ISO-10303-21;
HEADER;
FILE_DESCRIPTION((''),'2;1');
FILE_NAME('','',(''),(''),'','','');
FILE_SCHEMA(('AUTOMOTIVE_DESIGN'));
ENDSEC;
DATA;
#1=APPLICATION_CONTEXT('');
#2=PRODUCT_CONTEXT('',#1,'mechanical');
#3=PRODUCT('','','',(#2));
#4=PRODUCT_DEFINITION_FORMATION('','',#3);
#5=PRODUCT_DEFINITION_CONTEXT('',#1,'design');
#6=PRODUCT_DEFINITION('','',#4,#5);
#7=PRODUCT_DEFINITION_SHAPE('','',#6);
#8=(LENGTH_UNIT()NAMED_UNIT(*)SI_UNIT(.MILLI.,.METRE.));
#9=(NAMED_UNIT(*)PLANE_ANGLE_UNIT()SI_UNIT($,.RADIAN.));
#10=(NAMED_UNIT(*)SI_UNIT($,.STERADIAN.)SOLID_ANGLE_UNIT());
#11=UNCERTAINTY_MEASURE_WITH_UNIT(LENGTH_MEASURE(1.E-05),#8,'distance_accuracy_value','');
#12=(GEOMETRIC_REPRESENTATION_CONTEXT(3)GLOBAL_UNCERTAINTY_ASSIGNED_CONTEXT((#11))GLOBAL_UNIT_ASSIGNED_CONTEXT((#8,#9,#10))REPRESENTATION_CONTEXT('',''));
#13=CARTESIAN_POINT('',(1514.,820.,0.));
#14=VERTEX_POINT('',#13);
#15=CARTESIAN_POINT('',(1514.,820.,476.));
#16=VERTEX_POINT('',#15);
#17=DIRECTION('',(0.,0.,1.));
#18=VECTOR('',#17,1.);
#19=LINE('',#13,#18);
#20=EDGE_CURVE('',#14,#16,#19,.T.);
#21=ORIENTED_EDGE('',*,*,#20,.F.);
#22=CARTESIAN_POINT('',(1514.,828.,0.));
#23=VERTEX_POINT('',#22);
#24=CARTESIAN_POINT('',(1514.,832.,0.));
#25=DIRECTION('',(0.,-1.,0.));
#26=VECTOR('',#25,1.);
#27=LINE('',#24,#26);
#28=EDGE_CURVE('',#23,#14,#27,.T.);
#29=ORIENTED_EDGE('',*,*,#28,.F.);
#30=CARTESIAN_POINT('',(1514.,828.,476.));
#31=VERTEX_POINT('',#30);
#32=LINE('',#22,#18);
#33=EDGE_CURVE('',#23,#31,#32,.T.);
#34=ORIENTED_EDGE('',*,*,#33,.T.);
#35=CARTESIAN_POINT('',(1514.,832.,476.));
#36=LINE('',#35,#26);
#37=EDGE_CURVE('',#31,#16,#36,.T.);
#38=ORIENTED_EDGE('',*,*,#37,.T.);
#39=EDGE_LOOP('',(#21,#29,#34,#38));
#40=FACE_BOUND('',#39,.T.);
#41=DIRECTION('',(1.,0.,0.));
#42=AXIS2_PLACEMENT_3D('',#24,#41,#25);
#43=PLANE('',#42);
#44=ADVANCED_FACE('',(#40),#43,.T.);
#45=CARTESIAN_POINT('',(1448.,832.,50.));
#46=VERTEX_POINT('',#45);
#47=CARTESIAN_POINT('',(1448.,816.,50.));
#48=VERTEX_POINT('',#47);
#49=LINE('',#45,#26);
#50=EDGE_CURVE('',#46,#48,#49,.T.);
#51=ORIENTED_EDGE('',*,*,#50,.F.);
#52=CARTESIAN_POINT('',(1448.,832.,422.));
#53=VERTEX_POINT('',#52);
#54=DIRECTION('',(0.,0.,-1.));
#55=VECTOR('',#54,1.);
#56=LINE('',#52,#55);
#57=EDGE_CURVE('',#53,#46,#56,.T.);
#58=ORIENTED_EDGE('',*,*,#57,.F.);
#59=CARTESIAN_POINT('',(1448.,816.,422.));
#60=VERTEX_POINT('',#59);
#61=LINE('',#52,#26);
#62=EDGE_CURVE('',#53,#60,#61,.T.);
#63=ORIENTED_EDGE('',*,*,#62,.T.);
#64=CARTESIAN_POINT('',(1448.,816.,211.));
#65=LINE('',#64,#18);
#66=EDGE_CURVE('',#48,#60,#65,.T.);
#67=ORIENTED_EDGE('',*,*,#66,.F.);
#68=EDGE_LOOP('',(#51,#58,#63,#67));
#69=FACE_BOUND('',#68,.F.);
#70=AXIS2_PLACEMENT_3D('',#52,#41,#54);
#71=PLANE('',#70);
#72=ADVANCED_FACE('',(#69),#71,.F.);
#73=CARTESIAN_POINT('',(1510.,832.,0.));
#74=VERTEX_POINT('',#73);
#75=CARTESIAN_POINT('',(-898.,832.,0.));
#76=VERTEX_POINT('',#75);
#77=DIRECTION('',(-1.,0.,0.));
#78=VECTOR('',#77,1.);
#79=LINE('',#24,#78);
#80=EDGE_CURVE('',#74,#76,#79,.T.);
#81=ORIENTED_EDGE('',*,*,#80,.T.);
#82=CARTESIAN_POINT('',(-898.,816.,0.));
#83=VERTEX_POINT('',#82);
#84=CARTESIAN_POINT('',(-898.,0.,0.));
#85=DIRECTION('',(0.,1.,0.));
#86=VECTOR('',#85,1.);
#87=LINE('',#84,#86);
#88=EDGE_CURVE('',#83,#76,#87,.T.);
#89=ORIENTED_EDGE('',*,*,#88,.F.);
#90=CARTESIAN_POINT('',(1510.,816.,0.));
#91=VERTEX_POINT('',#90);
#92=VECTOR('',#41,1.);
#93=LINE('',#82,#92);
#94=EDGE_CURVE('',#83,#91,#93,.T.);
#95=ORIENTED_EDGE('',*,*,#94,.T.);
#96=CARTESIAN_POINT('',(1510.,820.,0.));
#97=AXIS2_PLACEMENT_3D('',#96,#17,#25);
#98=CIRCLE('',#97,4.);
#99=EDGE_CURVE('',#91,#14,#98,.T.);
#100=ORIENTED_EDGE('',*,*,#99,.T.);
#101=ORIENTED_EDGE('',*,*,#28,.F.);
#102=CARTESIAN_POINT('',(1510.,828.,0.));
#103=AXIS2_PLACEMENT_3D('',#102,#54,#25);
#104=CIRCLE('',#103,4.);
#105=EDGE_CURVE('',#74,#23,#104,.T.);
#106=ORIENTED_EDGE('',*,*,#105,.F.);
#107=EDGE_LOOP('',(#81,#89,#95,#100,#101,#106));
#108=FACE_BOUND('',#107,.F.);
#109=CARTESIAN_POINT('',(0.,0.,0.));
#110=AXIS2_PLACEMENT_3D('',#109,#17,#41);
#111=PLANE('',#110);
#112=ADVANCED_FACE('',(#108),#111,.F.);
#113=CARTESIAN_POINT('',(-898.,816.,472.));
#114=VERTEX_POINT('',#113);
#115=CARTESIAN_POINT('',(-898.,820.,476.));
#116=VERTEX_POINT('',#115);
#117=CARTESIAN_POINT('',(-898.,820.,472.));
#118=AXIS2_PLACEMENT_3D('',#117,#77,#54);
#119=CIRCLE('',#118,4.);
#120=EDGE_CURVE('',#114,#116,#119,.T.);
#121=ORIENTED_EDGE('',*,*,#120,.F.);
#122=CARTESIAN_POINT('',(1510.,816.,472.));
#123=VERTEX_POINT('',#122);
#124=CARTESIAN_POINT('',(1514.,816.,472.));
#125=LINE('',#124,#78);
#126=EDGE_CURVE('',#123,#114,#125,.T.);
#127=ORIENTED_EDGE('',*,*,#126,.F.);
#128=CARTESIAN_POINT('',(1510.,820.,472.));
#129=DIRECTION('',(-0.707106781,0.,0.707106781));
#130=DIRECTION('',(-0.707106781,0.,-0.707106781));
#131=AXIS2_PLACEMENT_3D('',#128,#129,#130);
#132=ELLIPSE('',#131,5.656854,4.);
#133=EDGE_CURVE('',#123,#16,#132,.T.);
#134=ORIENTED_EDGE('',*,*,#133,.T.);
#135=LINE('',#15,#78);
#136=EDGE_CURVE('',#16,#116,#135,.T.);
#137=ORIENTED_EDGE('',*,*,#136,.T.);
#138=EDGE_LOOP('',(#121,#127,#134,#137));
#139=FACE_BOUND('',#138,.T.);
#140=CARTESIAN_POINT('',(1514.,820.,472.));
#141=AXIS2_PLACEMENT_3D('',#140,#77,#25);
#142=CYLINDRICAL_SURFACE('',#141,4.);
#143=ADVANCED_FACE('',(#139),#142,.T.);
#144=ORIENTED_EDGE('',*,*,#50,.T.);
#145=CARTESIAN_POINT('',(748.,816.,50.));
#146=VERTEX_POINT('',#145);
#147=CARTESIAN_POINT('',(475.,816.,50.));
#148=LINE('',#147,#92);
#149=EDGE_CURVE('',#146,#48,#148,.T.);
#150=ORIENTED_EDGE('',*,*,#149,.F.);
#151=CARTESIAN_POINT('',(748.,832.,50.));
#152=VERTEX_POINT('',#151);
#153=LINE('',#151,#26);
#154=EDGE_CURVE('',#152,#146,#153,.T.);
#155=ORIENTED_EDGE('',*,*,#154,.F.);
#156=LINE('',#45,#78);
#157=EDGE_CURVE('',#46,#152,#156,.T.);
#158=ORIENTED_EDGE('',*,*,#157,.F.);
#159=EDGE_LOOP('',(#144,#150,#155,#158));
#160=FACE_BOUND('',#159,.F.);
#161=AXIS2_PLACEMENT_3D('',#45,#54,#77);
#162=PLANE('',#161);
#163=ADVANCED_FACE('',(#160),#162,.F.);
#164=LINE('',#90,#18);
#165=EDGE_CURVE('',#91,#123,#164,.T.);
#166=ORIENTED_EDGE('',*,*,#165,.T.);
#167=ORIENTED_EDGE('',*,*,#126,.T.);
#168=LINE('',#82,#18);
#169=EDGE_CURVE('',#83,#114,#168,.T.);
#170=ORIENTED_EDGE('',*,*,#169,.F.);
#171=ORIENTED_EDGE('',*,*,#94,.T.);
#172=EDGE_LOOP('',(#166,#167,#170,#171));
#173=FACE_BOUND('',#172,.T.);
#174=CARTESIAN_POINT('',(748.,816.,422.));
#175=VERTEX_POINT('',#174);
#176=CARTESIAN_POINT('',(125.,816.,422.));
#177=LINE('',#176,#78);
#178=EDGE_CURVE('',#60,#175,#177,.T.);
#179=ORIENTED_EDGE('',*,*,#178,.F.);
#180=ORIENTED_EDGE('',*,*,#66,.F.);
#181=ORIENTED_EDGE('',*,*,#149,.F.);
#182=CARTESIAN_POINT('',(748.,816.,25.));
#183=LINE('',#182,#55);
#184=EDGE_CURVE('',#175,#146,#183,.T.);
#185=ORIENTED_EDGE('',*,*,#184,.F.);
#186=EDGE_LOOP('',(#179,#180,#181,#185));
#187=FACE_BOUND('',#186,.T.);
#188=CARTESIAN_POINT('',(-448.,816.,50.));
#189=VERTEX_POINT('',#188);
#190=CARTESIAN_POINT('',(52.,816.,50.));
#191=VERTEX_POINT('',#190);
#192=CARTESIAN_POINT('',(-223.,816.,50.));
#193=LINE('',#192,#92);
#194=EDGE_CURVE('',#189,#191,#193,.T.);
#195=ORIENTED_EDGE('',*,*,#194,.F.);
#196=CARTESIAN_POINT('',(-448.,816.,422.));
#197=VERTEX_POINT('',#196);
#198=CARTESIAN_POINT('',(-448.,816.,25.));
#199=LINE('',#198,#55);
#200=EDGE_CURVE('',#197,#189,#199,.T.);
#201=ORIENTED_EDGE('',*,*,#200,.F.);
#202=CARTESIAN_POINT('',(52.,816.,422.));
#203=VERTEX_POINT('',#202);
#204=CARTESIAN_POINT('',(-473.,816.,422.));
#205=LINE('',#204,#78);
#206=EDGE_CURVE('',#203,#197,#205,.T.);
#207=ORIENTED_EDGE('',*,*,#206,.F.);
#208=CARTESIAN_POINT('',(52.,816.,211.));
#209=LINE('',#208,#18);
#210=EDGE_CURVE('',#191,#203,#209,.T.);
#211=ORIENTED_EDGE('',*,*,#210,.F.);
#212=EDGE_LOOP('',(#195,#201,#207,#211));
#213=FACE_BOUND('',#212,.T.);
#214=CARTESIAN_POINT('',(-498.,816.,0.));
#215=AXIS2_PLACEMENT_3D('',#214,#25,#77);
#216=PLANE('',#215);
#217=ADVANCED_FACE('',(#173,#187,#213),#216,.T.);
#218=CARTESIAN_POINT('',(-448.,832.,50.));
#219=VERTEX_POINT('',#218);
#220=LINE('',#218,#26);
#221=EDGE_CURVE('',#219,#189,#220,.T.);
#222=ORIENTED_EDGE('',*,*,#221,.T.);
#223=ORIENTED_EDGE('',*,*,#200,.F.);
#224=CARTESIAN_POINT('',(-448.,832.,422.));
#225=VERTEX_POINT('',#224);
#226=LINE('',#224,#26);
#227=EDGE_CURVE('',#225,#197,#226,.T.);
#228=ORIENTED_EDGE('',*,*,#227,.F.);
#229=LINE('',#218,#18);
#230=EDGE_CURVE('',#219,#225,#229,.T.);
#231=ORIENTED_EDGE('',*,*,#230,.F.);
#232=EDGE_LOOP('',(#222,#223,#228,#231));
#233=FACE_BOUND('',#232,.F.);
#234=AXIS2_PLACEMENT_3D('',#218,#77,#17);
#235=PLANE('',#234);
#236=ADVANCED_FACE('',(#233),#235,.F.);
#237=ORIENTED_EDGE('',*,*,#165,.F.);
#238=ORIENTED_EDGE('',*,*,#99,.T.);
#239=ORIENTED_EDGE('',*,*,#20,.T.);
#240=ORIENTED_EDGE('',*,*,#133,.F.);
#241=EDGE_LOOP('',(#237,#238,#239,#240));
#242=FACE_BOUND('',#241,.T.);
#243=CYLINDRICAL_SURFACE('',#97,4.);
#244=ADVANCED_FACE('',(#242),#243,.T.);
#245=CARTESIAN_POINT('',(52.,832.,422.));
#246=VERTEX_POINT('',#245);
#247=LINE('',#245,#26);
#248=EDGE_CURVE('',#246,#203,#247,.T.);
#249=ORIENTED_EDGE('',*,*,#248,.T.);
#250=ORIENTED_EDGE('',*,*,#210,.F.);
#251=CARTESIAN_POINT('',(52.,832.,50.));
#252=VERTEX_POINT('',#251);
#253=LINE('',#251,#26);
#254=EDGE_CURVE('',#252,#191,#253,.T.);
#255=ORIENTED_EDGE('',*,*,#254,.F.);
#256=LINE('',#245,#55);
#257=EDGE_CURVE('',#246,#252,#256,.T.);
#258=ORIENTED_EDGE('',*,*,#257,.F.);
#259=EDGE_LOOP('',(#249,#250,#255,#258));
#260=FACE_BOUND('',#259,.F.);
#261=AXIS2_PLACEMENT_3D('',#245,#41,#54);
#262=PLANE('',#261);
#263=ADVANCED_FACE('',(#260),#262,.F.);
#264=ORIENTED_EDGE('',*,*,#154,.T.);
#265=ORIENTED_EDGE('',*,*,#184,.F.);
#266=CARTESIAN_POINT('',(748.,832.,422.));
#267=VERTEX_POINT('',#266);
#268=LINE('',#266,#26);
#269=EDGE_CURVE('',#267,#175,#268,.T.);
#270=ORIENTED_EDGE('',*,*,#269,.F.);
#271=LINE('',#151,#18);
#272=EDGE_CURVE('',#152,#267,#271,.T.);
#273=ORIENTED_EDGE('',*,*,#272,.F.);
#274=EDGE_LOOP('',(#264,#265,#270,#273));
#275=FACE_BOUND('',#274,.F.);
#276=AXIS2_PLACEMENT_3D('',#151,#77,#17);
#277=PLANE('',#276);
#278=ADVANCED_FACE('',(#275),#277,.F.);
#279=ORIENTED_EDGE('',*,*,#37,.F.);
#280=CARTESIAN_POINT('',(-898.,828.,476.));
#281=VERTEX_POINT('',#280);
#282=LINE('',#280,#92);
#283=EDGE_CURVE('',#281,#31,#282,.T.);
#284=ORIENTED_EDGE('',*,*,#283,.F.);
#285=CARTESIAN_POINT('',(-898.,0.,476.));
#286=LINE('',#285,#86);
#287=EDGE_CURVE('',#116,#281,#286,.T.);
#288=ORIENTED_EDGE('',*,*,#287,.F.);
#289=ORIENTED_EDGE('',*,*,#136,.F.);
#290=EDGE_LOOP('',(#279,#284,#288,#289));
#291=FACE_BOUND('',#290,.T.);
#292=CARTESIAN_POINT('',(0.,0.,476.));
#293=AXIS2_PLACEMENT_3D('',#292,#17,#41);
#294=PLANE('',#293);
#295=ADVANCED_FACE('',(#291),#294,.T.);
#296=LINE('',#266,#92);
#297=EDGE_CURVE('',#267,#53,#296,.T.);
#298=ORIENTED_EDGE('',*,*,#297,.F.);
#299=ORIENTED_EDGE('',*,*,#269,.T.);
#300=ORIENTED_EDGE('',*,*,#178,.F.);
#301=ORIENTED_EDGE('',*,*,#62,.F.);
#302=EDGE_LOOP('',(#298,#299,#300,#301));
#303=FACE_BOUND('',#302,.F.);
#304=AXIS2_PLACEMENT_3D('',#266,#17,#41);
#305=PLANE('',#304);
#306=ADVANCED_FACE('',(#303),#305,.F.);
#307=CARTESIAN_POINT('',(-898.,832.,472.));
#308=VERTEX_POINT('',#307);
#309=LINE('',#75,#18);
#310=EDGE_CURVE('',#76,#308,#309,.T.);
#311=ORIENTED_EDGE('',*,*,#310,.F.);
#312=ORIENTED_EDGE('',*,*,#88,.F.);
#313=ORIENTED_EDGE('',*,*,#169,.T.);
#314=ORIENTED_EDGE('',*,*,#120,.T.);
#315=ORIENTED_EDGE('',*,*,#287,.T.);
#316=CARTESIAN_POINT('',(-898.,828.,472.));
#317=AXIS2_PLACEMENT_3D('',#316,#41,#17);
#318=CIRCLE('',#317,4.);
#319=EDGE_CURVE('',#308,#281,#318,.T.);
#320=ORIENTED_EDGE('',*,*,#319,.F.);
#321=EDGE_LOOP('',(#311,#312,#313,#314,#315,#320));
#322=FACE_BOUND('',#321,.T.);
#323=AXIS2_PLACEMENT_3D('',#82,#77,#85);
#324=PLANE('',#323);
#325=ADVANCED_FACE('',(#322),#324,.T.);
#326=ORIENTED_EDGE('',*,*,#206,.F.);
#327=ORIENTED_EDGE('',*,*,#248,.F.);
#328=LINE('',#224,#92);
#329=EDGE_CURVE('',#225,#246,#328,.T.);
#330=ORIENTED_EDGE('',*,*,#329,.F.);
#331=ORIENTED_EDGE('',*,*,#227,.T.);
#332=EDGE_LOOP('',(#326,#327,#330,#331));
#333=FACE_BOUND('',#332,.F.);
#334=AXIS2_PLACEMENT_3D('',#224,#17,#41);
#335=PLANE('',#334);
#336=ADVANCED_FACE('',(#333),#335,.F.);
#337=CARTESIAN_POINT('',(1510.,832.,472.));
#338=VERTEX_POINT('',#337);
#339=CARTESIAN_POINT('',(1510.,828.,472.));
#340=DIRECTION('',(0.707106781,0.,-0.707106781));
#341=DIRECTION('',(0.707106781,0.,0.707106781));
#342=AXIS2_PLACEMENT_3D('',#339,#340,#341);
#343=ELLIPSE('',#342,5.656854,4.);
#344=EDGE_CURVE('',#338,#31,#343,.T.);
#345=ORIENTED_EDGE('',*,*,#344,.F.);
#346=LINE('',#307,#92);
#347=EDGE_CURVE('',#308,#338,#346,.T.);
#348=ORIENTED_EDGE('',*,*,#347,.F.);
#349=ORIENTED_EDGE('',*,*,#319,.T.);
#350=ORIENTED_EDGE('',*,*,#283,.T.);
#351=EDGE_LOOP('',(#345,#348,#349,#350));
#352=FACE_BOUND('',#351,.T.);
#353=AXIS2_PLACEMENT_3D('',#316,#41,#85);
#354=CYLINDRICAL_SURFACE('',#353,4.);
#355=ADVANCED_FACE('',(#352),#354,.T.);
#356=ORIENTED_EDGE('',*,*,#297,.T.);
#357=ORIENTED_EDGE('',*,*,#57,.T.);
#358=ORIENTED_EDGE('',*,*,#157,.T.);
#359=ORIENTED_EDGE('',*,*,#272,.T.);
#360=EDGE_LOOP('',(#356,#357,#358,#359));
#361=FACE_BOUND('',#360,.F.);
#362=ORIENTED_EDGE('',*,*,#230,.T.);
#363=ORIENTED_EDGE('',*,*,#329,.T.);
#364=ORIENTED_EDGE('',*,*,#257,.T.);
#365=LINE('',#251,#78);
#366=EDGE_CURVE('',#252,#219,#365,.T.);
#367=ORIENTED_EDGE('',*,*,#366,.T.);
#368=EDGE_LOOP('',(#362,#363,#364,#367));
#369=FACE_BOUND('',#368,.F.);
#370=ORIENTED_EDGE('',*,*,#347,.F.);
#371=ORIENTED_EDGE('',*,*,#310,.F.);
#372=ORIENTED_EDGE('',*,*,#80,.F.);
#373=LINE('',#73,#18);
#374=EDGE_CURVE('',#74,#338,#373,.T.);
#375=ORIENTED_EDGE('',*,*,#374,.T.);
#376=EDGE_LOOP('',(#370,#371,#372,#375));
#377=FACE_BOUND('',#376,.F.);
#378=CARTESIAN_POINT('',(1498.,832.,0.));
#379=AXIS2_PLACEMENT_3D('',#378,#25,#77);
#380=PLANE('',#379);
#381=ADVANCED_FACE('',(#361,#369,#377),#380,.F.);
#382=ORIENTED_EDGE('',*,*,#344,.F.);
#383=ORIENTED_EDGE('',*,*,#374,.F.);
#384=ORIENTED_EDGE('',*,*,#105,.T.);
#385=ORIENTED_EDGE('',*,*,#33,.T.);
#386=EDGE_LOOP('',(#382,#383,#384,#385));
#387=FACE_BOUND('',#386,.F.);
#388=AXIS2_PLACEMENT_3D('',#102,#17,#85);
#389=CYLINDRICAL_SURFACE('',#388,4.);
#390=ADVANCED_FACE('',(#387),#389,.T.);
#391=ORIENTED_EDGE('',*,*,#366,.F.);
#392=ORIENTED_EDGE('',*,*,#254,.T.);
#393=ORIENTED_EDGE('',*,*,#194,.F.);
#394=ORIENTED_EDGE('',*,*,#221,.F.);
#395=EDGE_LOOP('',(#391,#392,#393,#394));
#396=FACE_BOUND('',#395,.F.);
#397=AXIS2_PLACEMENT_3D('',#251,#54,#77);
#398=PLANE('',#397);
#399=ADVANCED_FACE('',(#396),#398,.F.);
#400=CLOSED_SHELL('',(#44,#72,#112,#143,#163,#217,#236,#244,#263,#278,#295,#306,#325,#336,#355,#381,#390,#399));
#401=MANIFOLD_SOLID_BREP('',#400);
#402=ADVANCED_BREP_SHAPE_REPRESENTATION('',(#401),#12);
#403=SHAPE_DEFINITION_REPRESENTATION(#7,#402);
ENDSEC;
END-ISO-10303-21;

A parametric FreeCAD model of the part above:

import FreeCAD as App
import Part
import Sketcher


def edges_at(feature, points):
    """Names of the edges that pass closest to the given points."""
    edges = feature.Shape.Edges
    near = lambda p: min(range(len(edges)), key=lambda i: edges[i].distToShape(Part.Vertex(*p))[0])
    return sorted({f"Edge{near(p) + 1}" for p in points})

doc = App.newDocument("Part")
body = doc.addObject("PartDesign::Body", "Body")

sketch1 = doc.addObject("Sketcher::SketchObject", "Sketch")
body.addObject(sketch1)
sketch1.AttachmentSupport = (doc.XY_Plane, [""])
sketch1.MapMode = "FlatFace"
sketch1.addGeometry([
    Part.LineSegment(App.Vector(-898, 832, 0), App.Vector(-898, 816, 0)),
    Part.LineSegment(App.Vector(-898, 816, 0), App.Vector(1514, 816, 0)),
    Part.LineSegment(App.Vector(1514, 816, 0), App.Vector(1514, 832, 0)),
    Part.LineSegment(App.Vector(1514, 832, 0), App.Vector(-898, 832, 0)),
], False)
sketch1.addConstraint([
    Sketcher.Constraint("Coincident", 0, 2, 1, 1),
    Sketcher.Constraint("Coincident", 1, 2, 2, 1),
    Sketcher.Constraint("Coincident", 2, 2, 3, 1),
    Sketcher.Constraint("Coincident", 3, 2, 0, 1),
    Sketcher.Constraint("Vertical", 0),
    Sketcher.Constraint("Horizontal", 1),
    Sketcher.Constraint("Vertical", 2),
    Sketcher.Constraint("Horizontal", 3),
    Sketcher.Constraint("DistanceY", 0, 2, 0, 1, 16.0),
    Sketcher.Constraint("DistanceY", -1, 1, 0, 2, 816.0),
    Sketcher.Constraint("DistanceX", 1, 1, 1, 2, 2412.0),
    Sketcher.Constraint("DistanceX", 0, 2, -1, 1, 898.0),
])
pad1 = doc.addObject("PartDesign::Pad", "Pad")
body.addObject(pad1)
pad1.Profile = sketch1
pad1.Length = 476
doc.recompute()

fillet = doc.addObject("PartDesign::Fillet", "Fillet")
body.addObject(fillet)
fillet.Base = (pad1, edges_at(pad1, [
    (300, 832, 476),
    (-698, 816, 476),
    (1514, 832, 238),
    (1514, 816, 238),
]))
fillet.Radius = 4

sketch2 = doc.addObject("Sketcher::SketchObject", "Sketch001")
body.addObject(sketch2)
sketch2.AttachmentSupport = (doc.XZ_Plane, [""])
sketch2.MapMode = "FlatFace"
sketch2.AttachmentOffset = App.Placement(App.Vector(0, 0, -832), App.Rotation())
sketch2.addGeometry([
    Part.LineSegment(App.Vector(-448, 422, 0), App.Vector(52, 422, 0)),
    Part.LineSegment(App.Vector(52, 422, 0), App.Vector(52, 50, 0)),
    Part.LineSegment(App.Vector(52, 50, 0), App.Vector(-448, 50, 0)),
    Part.LineSegment(App.Vector(-448, 50, 0), App.Vector(-448, 422, 0)),
    Part.LineSegment(App.Vector(1448, 422, 0), App.Vector(1448, 50, 0)),
    Part.LineSegment(App.Vector(1448, 50, 0), App.Vector(748, 50, 0)),
    Part.LineSegment(App.Vector(748, 50, 0), App.Vector(748, 422, 0)),
    Part.LineSegment(App.Vector(748, 422, 0), App.Vector(1448, 422, 0)),
], False)
sketch2.addConstraint([
    Sketcher.Constraint("Coincident", 0, 2, 1, 1),
    Sketcher.Constraint("Coincident", 1, 2, 2, 1),
    Sketcher.Constraint("Coincident", 2, 2, 3, 1),
    Sketcher.Constraint("Coincident", 3, 2, 0, 1),
    Sketcher.Constraint("Coincident", 4, 2, 5, 1),
    Sketcher.Constraint("Coincident", 5, 2, 6, 1),
    Sketcher.Constraint("Coincident", 6, 2, 7, 1),
    Sketcher.Constraint("Coincident", 7, 2, 4, 1),
    Sketcher.Constraint("Horizontal", 0),
    Sketcher.Constraint("Vertical", 1),
    Sketcher.Constraint("Horizontal", 2),
    Sketcher.Constraint("Vertical", 3),
    Sketcher.Constraint("Vertical", 4),
    Sketcher.Constraint("Horizontal", 5),
    Sketcher.Constraint("Vertical", 6),
    Sketcher.Constraint("Horizontal", 7),
    Sketcher.Constraint("Horizontal", 2, 2, 4, 2),
    Sketcher.Constraint("Horizontal", 3, 2, 6, 2),
    Sketcher.Constraint("DistanceY", -1, 1, 1, 2, 50.0),
    Sketcher.Constraint("DistanceX", 0, 1, 0, 2, 500.0),
    Sketcher.Constraint("DistanceX", 5, 2, 5, 1, 700.0),
    Sketcher.Constraint("DistanceY", 1, 2, 1, 1, 372.0),
    Sketcher.Constraint("DistanceX", -1, 1, 0, 2, 52.0),
    Sketcher.Constraint("DistanceX", -1, 1, 4, 2, 1448.0),
])
pocket1 = doc.addObject("PartDesign::Pocket", "Pocket")
body.addObject(pocket1)
pocket1.Profile = sketch2
pocket1.Length = 20
pocket1.Reversed = True

doc.recompute()
